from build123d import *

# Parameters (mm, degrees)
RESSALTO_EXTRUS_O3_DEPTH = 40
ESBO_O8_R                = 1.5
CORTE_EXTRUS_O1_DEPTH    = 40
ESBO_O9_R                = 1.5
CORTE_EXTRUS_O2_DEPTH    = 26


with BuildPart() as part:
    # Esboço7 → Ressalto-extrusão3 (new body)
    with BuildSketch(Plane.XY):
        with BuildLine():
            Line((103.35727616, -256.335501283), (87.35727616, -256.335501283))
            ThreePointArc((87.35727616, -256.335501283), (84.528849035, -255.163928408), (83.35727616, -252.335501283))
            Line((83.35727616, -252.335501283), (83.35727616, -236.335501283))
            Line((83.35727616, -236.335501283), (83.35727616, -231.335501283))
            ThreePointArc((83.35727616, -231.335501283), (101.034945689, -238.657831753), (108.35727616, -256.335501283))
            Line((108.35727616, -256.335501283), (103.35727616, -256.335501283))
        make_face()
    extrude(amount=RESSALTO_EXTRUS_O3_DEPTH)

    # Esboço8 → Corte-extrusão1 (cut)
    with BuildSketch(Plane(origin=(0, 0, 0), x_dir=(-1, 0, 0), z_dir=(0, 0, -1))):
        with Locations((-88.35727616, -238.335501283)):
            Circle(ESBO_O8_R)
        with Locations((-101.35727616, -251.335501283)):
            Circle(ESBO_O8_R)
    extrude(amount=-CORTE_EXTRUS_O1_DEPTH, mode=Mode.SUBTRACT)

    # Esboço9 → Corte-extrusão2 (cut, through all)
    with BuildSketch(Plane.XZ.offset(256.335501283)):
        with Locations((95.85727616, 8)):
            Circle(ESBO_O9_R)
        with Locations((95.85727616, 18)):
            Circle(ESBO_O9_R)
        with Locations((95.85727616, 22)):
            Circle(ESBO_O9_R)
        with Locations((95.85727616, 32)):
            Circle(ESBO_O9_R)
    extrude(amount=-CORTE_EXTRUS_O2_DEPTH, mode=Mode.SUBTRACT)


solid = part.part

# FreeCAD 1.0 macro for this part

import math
import FreeCAD as App
import Part
import Sketcher
from FreeCAD import Vector

doc = App.newDocument("Part")
body = doc.addObject("PartDesign::Body", "Body")

sketch1 = body.newObject("Sketcher::SketchObject", "Sketch")
sketch1.AttachmentSupport = (doc.getObject("XY_Plane"), [""])
sketch1.MapMode = "FlatFace"
sketch1.addGeometry(Part.ArcOfCircle(Part.Circle(Vector(87.357276, -252.335501, 0), Vector(0, 0, 1), 4), math.radians(180), math.radians(270)), False)
sketch1.addGeometry(Part.LineSegment(Vector(87.357276, -256.335501, 0), Vector(108.357276, -256.335501, 0)), False)
sketch1.addGeometry(Part.ArcOfCircle(Part.Circle(Vector(83.357276, -256.335501, 0), Vector(0, 0, 1), 25), math.radians(0), math.radians(90)), False)
sketch1.addGeometry(Part.LineSegment(Vector(83.357276, -231.335501, 0), Vector(83.357276, -252.335501, 0)), False)
sketch1.addConstraint(Sketcher.Constraint("Tangent", 0, 2, 1, 1))
sketch1.addConstraint(Sketcher.Constraint("Coincident", 1, 2, 2, 1))
sketch1.addConstraint(Sketcher.Constraint("Coincident", 2, 2, 3, 1))
sketch1.addConstraint(Sketcher.Constraint("Tangent", 3, 2, 0, 1))
sketch1.addConstraint(Sketcher.Constraint("Horizontal", 1))
sketch1.addConstraint(Sketcher.Constraint("Vertical", 3))
sketch1.addConstraint(Sketcher.Constraint("Horizontal", 2, 3, 0, 2))
sketch1.addConstraint(Sketcher.Constraint("Equal", 1, 3))
sketch1.addConstraint(Sketcher.Constraint("Radius", 0, 4.0))
sketch1.addConstraint(Sketcher.Constraint("Radius", 2, 25.0))
sketch1.addConstraint(Sketcher.Constraint("DistanceY", 0, 3, -1, 1, 252.335501))
sketch1.addConstraint(Sketcher.Constraint("DistanceX", -1, 1, 0, 3, 87.357276))
pad1 = body.newObject("PartDesign::Pad", "Pad")
pad1.Profile = sketch1
pad1.Length = 40

sketch2 = body.newObject("Sketcher::SketchObject", "Sketch001")
sketch2.AttachmentSupport = (doc.getObject("XY_Plane"), [""])
sketch2.MapMode = "FlatFace"
sketch2.addGeometry(Part.Circle(Vector(88.357276, -238.335501, 0), Vector(0, 0, 1), 1.5), False)
sketch2.addGeometry(Part.Circle(Vector(101.357276, -251.335501, 0), Vector(0, 0, 1), 1.5), False)
sketch2.addConstraint(Sketcher.Constraint("Equal", 0, 1))
sketch2.addConstraint(Sketcher.Constraint("Diameter", 0, 3.0))
sketch2.addConstraint(Sketcher.Constraint("DistanceX", 0, 3, 1, 3, 13.0))
sketch2.addConstraint(Sketcher.Constraint("DistanceY", 1, 3, 0, 3, 13.0))
sketch2.addConstraint(Sketcher.Constraint("DistanceY", 0, 3, -1, 1, 238.335501))
sketch2.addConstraint(Sketcher.Constraint("DistanceX", -1, 1, 0, 3, 88.357276))
pocket1 = body.newObject("PartDesign::Pocket", "Pocket")
pocket1.Profile = sketch2
pocket1.Length = 40
pocket1.Reversed = True

sketch3 = body.newObject("Sketcher::SketchObject", "Sketch002")
sketch3.AttachmentSupport = (doc.getObject("XZ_Plane"), [""])
sketch3.MapMode = "FlatFace"
sketch3.AttachmentOffset = App.Placement(Vector(0, 0, 256.335501), App.Rotation())
sketch3.addGeometry(Part.Circle(Vector(95.857276, 8, 0), Vector(0, 0, 1), 1.5), False)
sketch3.addGeometry(Part.Circle(Vector(95.857276, 18, 0), Vector(0, 0, 1), 1.5), False)
sketch3.addGeometry(Part.Circle(Vector(95.857276, 22, 0), Vector(0, 0, 1), 1.5), False)
sketch3.addGeometry(Part.Circle(Vector(95.857276, 32, 0), Vector(0, 0, 1), 1.5), False)
sketch3.addConstraint(Sketcher.Constraint("Equal", 0, 1))
sketch3.addConstraint(Sketcher.Constraint("Equal", 1, 2))
sketch3.addConstraint(Sketcher.Constraint("Equal", 2, 3))
sketch3.addConstraint(Sketcher.Constraint("Vertical", 0, 3, 1, 3))
sketch3.addConstraint(Sketcher.Constraint("Vertical", 1, 3, 2, 3))
sketch3.addConstraint(Sketcher.Constraint("Vertical", 2, 3, 3, 3))
sketch3.addConstraint(Sketcher.Constraint("Diameter", 0, 3.0))
sketch3.addConstraint(Sketcher.Constraint("DistanceY", -1, 1, 0, 3, 8.0))
sketch3.addConstraint(Sketcher.Constraint("DistanceY", -1, 1, 1, 3, 18.0))
sketch3.addConstraint(Sketcher.Constraint("DistanceY", -1, 1, 2, 3, 22.0))
sketch3.addConstraint(Sketcher.Constraint("DistanceY", -1, 1, 3, 3, 32.0))
sketch3.addConstraint(Sketcher.Constraint("DistanceX", -1, 1, 0, 3, 95.857276))
pocket2 = body.newObject("PartDesign::Pocket", "Pocket001")
pocket2.Profile = sketch3
pocket2.Type = "ThroughAll"

doc.recompute()
